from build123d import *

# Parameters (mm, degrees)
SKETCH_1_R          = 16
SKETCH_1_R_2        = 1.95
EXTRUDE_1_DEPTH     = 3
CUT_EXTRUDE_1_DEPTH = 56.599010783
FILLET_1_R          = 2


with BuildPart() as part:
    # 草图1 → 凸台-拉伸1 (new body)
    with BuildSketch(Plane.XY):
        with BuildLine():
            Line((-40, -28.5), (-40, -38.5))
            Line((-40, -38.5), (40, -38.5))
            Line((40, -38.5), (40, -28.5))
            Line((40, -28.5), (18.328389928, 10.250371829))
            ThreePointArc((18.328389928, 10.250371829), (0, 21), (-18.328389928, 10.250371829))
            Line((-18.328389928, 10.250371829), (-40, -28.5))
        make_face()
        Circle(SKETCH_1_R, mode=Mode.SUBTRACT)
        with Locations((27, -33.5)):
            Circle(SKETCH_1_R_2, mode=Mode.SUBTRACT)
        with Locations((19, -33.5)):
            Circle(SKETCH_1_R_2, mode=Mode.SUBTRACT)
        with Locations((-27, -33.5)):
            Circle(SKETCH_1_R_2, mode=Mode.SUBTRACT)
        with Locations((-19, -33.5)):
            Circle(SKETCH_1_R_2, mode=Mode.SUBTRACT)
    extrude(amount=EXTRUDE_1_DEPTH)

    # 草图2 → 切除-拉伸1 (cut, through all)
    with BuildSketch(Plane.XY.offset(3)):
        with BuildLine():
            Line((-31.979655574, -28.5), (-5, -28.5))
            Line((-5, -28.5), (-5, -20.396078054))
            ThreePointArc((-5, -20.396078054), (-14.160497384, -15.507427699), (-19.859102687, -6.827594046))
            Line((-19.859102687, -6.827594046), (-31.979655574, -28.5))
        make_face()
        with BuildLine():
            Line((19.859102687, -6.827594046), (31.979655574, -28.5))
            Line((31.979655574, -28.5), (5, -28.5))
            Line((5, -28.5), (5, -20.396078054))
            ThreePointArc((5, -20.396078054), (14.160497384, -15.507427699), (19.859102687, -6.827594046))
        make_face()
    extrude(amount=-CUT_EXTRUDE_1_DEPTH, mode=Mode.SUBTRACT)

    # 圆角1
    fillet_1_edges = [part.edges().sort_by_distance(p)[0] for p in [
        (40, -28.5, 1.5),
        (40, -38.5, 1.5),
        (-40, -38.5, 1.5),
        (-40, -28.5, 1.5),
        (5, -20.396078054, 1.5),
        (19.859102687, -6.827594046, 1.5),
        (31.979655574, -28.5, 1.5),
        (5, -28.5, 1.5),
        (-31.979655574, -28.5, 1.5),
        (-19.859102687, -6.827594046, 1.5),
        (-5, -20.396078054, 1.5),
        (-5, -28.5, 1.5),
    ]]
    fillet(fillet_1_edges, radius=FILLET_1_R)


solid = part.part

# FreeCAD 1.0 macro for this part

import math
import FreeCAD as App
import Part
import Sketcher

V = App.Vector


def edges_at(feature, points):
    """Names of the edges that pass closest to the given points."""
    edges = feature.Shape.Edges
    near = lambda p: min(range(len(edges)), key=lambda i: edges[i].distToShape(Part.Vertex(*p))[0])
    return sorted({f"Edge{near(p) + 1}" for p in points})

doc = App.newDocument("Part")
body = doc.addObject("PartDesign::Body", "Body")

sketch1 = body.newObject("Sketcher::SketchObject", "Sketch")
sketch1.AttachmentSupport = (doc.getObject("XY_Plane"), [""])
sketch1.MapMode = "FlatFace"
sketch1.addGeometry(Part.LineSegment(V(-40, -28.5, 0), V(-40, -38.5, 0)), False)
sketch1.addGeometry(Part.LineSegment(V(-40, -38.5, 0), V(40, -38.5, 0)), False)
sketch1.addGeometry(Part.LineSegment(V(40, -38.5, 0), V(40, -28.5, 0)), False)
sketch1.addGeometry(Part.LineSegment(V(40, -28.5, 0), V(18.3, 10.3, 0)), False)
sketch1.addGeometry(Part.ArcOfCircle(Part.Circle(V(0, 0, 0), V(0, 0, 1), 21), math.radians(29), math.radians(151)), False)
sketch1.addGeometry(Part.LineSegment(V(-18.3, 10.3, 0), V(-40, -28.5, 0)), False)
sketch1.addGeometry(Part.Circle(V(-27, -33.5, 0), V(0, 0, 1), 1.9), False)
sketch1.addGeometry(Part.Circle(V(-19, -33.5, 0), V(0, 0, 1), 1.9), False)
sketch1.addGeometry(Part.Circle(V(19, -33.5, 0), V(0, 0, 1), 1.9), False)
sketch1.addGeometry(Part.Circle(V(27, -33.5, 0), V(0, 0, 1), 1.9), False)
sketch1.addGeometry(Part.Circle(V(0, 0, 0), V(0, 0, 1), 16), False)
sketch1.addConstraint(Sketcher.Constraint("Coincident", 0, 2, 1, 1))
sketch1.addConstraint(Sketcher.Constraint("Coincident", 1, 2, 2, 1))
sketch1.addConstraint(Sketcher.Constraint("Coincident", 2, 2, 3, 1))
sketch1.addConstraint(Sketcher.Constraint("Tangent", 3, 2, 4, 1))
sketch1.addConstraint(Sketcher.Constraint("Tangent", 4, 2, 5, 1))
sketch1.addConstraint(Sketcher.Constraint("Coincident", 5, 2, 0, 1))
sketch1.addConstraint(Sketcher.Constraint("Vertical", 0))
sketch1.addConstraint(Sketcher.Constraint("Horizontal", 1))
sketch1.addConstraint(Sketcher.Constraint("Vertical", 2))
sketch1.addConstraint(Sketcher.Constraint("Coincident", 4, 3, -1, 1))
sketch1.addConstraint(Sketcher.Constraint("Coincident", 10, 3, -1, 1))
sketch1.addConstraint(Sketcher.Constraint("Equal", 6, 7))
sketch1.addConstraint(Sketcher.Constraint("Equal", 7, 8))
sketch1.addConstraint(Sketcher.Constraint("Equal", 8, 9))
sketch1.addConstraint(Sketcher.Constraint("Symmetric", 7, 3, 8, 3, -2))
sketch1.addConstraint(Sketcher.Constraint("Symmetric", 6, 3, 9, 3, -2))
sketch1.addConstraint(Sketcher.Constraint("Symmetric", 2, 2, 5, 2, -2))
sketch1.addConstraint(Sketcher.Constraint("Horizontal", 6, 3, 7, 3))
sketch1.addConstraint(Sketcher.Constraint("Diameter", 10, 32.0))
sketch1.addConstraint(Sketcher.Constraint("Radius", 4, 21.0))
sketch1.addConstraint(Sketcher.Constraint("Diameter", 6, 3.9))
sketch1.addConstraint(Sketcher.Constraint("DistanceX", 1, 1, 1, 2, 80.0))
sketch1.addConstraint(Sketcher.Constraint("DistanceY", 0, 2, 0, 1, 10.0))
sketch1.addConstraint(Sketcher.Constraint("DistanceX", 6, 3, -1, 1, 27.0))
sketch1.addConstraint(Sketcher.Constraint("DistanceX", 7, 3, -1, 1, 19.0))
sketch1.addConstraint(Sketcher.Constraint("DistanceY", 0, 2, 6, 3, 5.0))
sketch1.addConstraint(Sketcher.Constraint("DistanceY", 6, 3, -1, 1, 33.5))
pad1 = body.newObject("PartDesign::Pad", "Pad")
pad1.Profile = sketch1
pad1.Length = 3

sketch2 = body.newObject("Sketcher::SketchObject", "Sketch001")
sketch2.AttachmentSupport = (doc.getObject("XY_Plane"), [""])
sketch2.MapMode = "FlatFace"
sketch2.AttachmentOffset = App.Placement(V(0, 0, 3), App.Rotation())
sketch2.addGeometry(Part.LineSegment(V(-32, -28, 0), V(-5, -28, 0)), False)
sketch2.addGeometry(Part.LineSegment(V(-5, -28, 0), V(-5, -20, 0)), False)
sketch2.addGeometry(Part.ArcOfCircle(Part.Circle(V(0, 0, 0), V(0, 0, 1), 21), math.radians(-161), math.radians(-104)), False)
sketch2.addGeometry(Part.LineSegment(V(-20, -7, 0), V(-32, -28, 0)), False)
sketch2.addGeometry(Part.LineSegment(V(32, -28, 0), V(20, -7, 0)), False)
sketch2.addGeometry(Part.ArcOfCircle(Part.Circle(V(0, 0, 0), V(0, 0, 1), 21), math.radians(-76), math.radians(-19)), False)
sketch2.addGeometry(Part.LineSegment(V(5, -20, 0), V(5, -28, 0)), False)
sketch2.addGeometry(Part.LineSegment(V(5, -28, 0), V(32, -28, 0)), False)
sketch2.addConstraint(Sketcher.Constraint("Coincident", 0, 2, 1, 1))
sketch2.addConstraint(Sketcher.Constraint("Coincident", 1, 2, 2, 2))
sketch2.addConstraint(Sketcher.Constraint("Coincident", 2, 1, 3, 1))
sketch2.addConstraint(Sketcher.Constraint("Coincident", 3, 2, 0, 1))
sketch2.addConstraint(Sketcher.Constraint("Coincident", 4, 2, 5, 2))
sketch2.addConstraint(Sketcher.Constraint("Coincident", 5, 1, 6, 1))
sketch2.addConstraint(Sketcher.Constraint("Coincident", 6, 2, 7, 1))
sketch2.addConstraint(Sketcher.Constraint("Coincident", 7, 2, 4, 1))
sketch2.addConstraint(Sketcher.Constraint("Horizontal", 0))
sketch2.addConstraint(Sketcher.Constraint("Vertical", 1))
sketch2.addConstraint(Sketcher.Constraint("Vertical", 6))
sketch2.addConstraint(Sketcher.Constraint("Horizontal", 7))
sketch2.addConstraint(Sketcher.Constraint("Coincident", 2, 3, -1, 1))
sketch2.addConstraint(Sketcher.Constraint("Coincident", 5, 3, -1, 1))
sketch2.addConstraint(Sketcher.Constraint("Equal", 2, 5))
sketch2.addConstraint(Sketcher.Constraint("Symmetric", 0, 2, 6, 2, -2))
sketch2.addConstraint(Sketcher.Constraint("Horizontal", 2, 1, 4, 2))
sketch2.addConstraint(Sketcher.Constraint("Equal", 0, 7))
sketch2.addConstraint(Sketcher.Constraint("Radius", 2, 21.0))
sketch2.addConstraint(Sketcher.Constraint("DistanceX", 0, 2, -1, 1, 5.0))
sketch2.addConstraint(Sketcher.Constraint("DistanceY", 0, 2, -1, 1, 28.5))
sketch2.addConstraint(Sketcher.Constraint("Distance", 3, 24.831451))
sketch2.addConstraint(Sketcher.Constraint("DistanceX", 0, 1, 0, 2, 26.979656))
pocket1 = body.newObject("PartDesign::Pocket", "Pocket")
pocket1.Profile = sketch2
pocket1.Type = "ThroughAll"
doc.recompute()

fillet = body.newObject("PartDesign::Fillet", "Fillet")
fillet.Base = (pocket1, edges_at(pocket1, [
    (40, -28.5, 1.5),
    (40, -38.5, 1.5),
    (-40, -38.5, 1.5),
    (-40, -28.5, 1.5),
    (5, -20.396, 1.5),
    (19.859, -6.828, 1.5),
    (31.98, -28.5, 1.5),
    (5, -28.5, 1.5),
    (-31.98, -28.5, 1.5),
    (-19.859, -6.828, 1.5),
    (-5, -20.396, 1.5),
    (-5, -28.5, 1.5),
]))
fillet.Radius = 2

doc.recompute()
